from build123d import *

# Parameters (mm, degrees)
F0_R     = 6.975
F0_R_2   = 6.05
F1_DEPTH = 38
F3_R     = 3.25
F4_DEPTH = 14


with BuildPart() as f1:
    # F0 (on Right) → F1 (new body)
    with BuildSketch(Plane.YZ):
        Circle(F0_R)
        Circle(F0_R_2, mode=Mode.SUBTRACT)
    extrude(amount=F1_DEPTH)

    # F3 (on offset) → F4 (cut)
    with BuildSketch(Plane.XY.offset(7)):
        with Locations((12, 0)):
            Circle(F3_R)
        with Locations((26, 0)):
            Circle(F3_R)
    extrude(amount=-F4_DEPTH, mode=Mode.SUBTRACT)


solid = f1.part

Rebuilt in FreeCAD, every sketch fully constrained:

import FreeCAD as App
import Part
import Sketcher
from FreeCAD import Vector
Q = App.Units.Quantity

doc = App.newDocument("Part")
body = doc.addObject("PartDesign::Body", "Body")

sketch1 = body.newObject("Sketcher::SketchObject", "Sketch")
sketch1.AttachmentSupport = (doc.getObject("YZ_Plane"), [""])
sketch1.MapMode = "FlatFace"
sketch1.addGeometry([
    Part.Circle(Vector(0, 0, 0), Vector(0, 0, 1), 6.975),
    Part.Circle(Vector(0, 0, 0), Vector(0, 0, 1), 6.05),
], False)
sketch1.addConstraint([
    Sketcher.Constraint("Coincident", 0, 3, -1, 1),
    Sketcher.Constraint("Coincident", 1, 3, -1, 1),
    Sketcher.Constraint("Diameter", 1, Q("12.1 mm")),
    Sketcher.Constraint("Diameter", 0, Q("13.95 mm")),
])
pad1 = body.newObject("PartDesign::Pad", "Pad")
pad1.Profile = sketch1
pad1.Length = 38

sketch2 = body.newObject("Sketcher::SketchObject", "Sketch001")
sketch2.AttachmentSupport = (doc.getObject("XY_Plane"), [""])
sketch2.MapMode = "FlatFace"
sketch2.AttachmentOffset = App.Placement(Vector(0, 0, 7), App.Rotation())
sketch2.addGeometry([
    Part.Circle(Vector(12, 0, 0), Vector(0, 0, 1), 3.25),
    Part.Circle(Vector(26, 0, 0), Vector(0, 0, 1), 3.25),
], False)
sketch2.addConstraint([
    Sketcher.Constraint("Equal", 0, 1),
    Sketcher.Constraint("PointOnObject", 0, 3, -1),
    Sketcher.Constraint("PointOnObject", 1, 3, -1),
    Sketcher.Constraint("Diameter", 0, Q("6.5 mm")),
    Sketcher.Constraint("DistanceX", -1, 1, 0, 3, Q("12 mm")),
    Sketcher.Constraint("DistanceX", -1, 1, 1, 3, Q("26 mm")),
])
pocket1 = body.newObject("PartDesign::Pocket", "Pocket")
pocket1.Profile = sketch2
pocket1.Length = 14

doc.recompute()
